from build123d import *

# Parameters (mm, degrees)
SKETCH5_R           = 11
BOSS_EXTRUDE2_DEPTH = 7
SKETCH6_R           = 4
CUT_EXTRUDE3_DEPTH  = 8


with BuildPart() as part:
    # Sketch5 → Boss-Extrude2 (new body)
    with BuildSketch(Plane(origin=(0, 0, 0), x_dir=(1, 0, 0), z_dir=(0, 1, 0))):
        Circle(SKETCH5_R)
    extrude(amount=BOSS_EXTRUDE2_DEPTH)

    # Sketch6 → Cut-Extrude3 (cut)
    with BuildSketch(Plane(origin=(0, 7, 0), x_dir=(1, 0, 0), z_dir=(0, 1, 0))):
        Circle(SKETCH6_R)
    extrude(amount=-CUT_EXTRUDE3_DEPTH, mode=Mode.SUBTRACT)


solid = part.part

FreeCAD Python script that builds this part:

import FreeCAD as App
import Part
import Sketcher

V = App.Vector
Q = App.Units.Quantity

doc = App.newDocument("Part")
body = doc.addObject("PartDesign::Body", "Body")

# Sketch on XZ plane
sketch1 = body.newObject("Sketcher::SketchObject", "Sketch")
sketch1.AttachmentSupport = (doc.getObject("XZ_Plane"), [""])
sketch1.MapMode = "FlatFace"
sketch1.addGeometry(Part.Circle(V(0, 0, 0), V(0, 0, 1), 11), False)
sketch1.addConstraint([
    Sketcher.Constraint("Coincident", 0, 3, -1, 1),
    Sketcher.Constraint("Diameter", 0, Q("22 mm")),
])
pad1 = body.newObject("PartDesign::Pad", "Pad")
pad1.Profile = sketch1
pad1.Length = 7
pad1.Reversed = True

# Sketch on XZ plane
sketch2 = body.newObject("Sketcher::SketchObject", "Sketch001")
sketch2.AttachmentSupport = (doc.getObject("XZ_Plane"), [""])
sketch2.MapMode = "FlatFace"
sketch2.AttachmentOffset = App.Placement(V(0, 0, -7), App.Rotation())
sketch2.addGeometry(Part.Circle(V(0, 0, 0), V(0, 0, 1), 4), False)
sketch2.addConstraint([
    Sketcher.Constraint("Coincident", 0, 3, -1, 1),
    Sketcher.Constraint("Diameter", 0, Q("8 mm")),
])
pocket1 = body.newObject("PartDesign::Pocket", "Pocket")
pocket1.Profile = sketch2
pocket1.Length = 8
pocket1.Reversed = True

doc.recompute()
